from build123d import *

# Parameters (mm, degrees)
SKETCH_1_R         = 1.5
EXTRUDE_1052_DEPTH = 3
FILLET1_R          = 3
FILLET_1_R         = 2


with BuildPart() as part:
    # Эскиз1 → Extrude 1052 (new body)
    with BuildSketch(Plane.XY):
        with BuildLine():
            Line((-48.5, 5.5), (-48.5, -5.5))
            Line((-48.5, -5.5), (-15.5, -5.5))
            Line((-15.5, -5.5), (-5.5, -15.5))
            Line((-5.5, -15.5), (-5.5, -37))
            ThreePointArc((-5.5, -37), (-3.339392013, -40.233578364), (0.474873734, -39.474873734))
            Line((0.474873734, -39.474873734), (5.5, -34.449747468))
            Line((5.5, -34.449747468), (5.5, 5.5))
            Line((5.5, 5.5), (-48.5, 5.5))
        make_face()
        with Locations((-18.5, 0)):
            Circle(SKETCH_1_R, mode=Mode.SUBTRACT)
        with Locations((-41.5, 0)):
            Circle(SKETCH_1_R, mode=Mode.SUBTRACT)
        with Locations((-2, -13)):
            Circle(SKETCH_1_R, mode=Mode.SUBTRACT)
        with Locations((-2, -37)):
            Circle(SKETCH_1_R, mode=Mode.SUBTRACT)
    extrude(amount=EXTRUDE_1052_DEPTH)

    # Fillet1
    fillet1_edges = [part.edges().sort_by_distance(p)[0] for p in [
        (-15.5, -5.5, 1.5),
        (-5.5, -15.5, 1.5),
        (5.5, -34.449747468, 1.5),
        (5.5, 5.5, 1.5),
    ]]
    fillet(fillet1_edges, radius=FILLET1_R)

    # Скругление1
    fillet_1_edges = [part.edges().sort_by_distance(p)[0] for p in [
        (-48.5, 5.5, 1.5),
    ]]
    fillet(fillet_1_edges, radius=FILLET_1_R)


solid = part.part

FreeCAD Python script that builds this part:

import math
import FreeCAD as App
import Part
import Sketcher

V = App.Vector
Q = App.Units.Quantity


def edges_at(feature, points):
    """Names of the edges that pass closest to the given points."""
    edges = feature.Shape.Edges
    near = lambda p: min(range(len(edges)), key=lambda i: edges[i].distToShape(Part.Vertex(*p))[0])
    return sorted({f"Edge{near(p) + 1}" for p in points})

doc = App.newDocument("Part")
body = doc.addObject("PartDesign::Body", "Body")

sketch1 = doc.addObject("Sketcher::SketchObject", "Sketch")
body.addObject(sketch1)
sketch1.AttachmentSupport = (doc.XY_Plane, [""])
sketch1.MapMode = "FlatFace"
sketch1.addGeometry(Part.LineSegment(V(-48.5, 5.5, 0), V(-48.5, -5.5, 0)), False)
sketch1.addGeometry(Part.LineSegment(V(-48.5, -5.5, 0), V(-15.5, -5.5, 0)), False)
sketch1.addGeometry(Part.LineSegment(V(-15.5, -5.5, 0), V(-5.5, -15.5, 0)), False)
sketch1.addGeometry(Part.LineSegment(V(-5.5, -15.5, 0), V(-5.5, -37, 0)), False)
sketch1.addGeometry(Part.ArcOfCircle(Part.Circle(V(-2, -37, 0), V(0, 0, 1), 3.5), math.radians(180), math.radians(315)), False)
sketch1.addGeometry(Part.LineSegment(V(0.474874, -39.474874, 0), V(5.5, -34.449747, 0)), False)
sketch1.addGeometry(Part.LineSegment(V(5.5, -34.449747, 0), V(5.5, 5.5, 0)), False)
sketch1.addGeometry(Part.LineSegment(V(5.5, 5.5, 0), V(-48.5, 5.5, 0)), False)
sketch1.addGeometry(Part.Circle(V(-2, -37, 0), V(0, 0, 1), 1.5), False)
sketch1.addGeometry(Part.Circle(V(-41.5, 0, 0), V(0, 0, 1), 1.5), False)
sketch1.addGeometry(Part.Circle(V(-2, -13, 0), V(0, 0, 1), 1.5), False)
sketch1.addGeometry(Part.Circle(V(-18.5, 0, 0), V(0, 0, 1), 1.5), False)
sketch1.addConstraint(Sketcher.Constraint("Coincident", 0, 2, 1, 1))
sketch1.addConstraint(Sketcher.Constraint("Coincident", 1, 2, 2, 1))
sketch1.addConstraint(Sketcher.Constraint("Coincident", 2, 2, 3, 1))
sketch1.addConstraint(Sketcher.Constraint("Tangent", 3, 2, 4, 1))
sketch1.addConstraint(Sketcher.Constraint("Tangent", 4, 2, 5, 1))
sketch1.addConstraint(Sketcher.Constraint("Coincident", 5, 2, 6, 1))
sketch1.addConstraint(Sketcher.Constraint("Coincident", 6, 2, 7, 1))
sketch1.addConstraint(Sketcher.Constraint("Coincident", 7, 2, 0, 1))
sketch1.addConstraint(Sketcher.Constraint("Vertical", 0))
sketch1.addConstraint(Sketcher.Constraint("Horizontal", 1))
sketch1.addConstraint(Sketcher.Constraint("Vertical", 3))
sketch1.addConstraint(Sketcher.Constraint("Vertical", 6))
sketch1.addConstraint(Sketcher.Constraint("Horizontal", 7))
sketch1.addConstraint(Sketcher.Constraint("Coincident", 8, 3, 4, 3))
sketch1.addConstraint(Sketcher.Constraint("Equal", 8, 9))
sketch1.addConstraint(Sketcher.Constraint("Equal", 9, 10))
sketch1.addConstraint(Sketcher.Constraint("Equal", 10, 11))
sketch1.addConstraint(Sketcher.Constraint("PointOnObject", 9, 3, -1))
sketch1.addConstraint(Sketcher.Constraint("PointOnObject", 11, 3, -1))
sketch1.addConstraint(Sketcher.Constraint("Perpendicular", 2, 5))
sketch1.addConstraint(Sketcher.Constraint("Vertical", 8, 3, 10, 3))
sketch1.addConstraint(Sketcher.Constraint("Diameter", 8, Q("3 mm")))
sketch1.addConstraint(Sketcher.Constraint("Radius", 4, Q("3.5 mm")))
sketch1.addConstraint(Sketcher.Constraint("DistanceX", 1, 1, 1, 2, Q("33 mm")))
sketch1.addConstraint(Sketcher.Constraint("DistanceX", 7, 2, 7, 1, Q("54 mm")))
sketch1.addConstraint(Sketcher.Constraint("DistanceY", 0, 2, 0, 1, Q("11 mm")))
sketch1.addConstraint(Sketcher.Constraint("Angle", 2, Q("-45 deg")))
sketch1.addConstraint(Sketcher.Constraint("DistanceY", 3, 2, 3, 1, Q("21.5 mm")))
sketch1.addConstraint(Sketcher.Constraint("DistanceX", 4, 3, -1, 1, Q("2 mm")))
sketch1.addConstraint(Sketcher.Constraint("DistanceY", 4, 3, -1, 1, Q("37 mm")))
sketch1.addConstraint(Sketcher.Constraint("DistanceY", 10, 3, -1, 1, Q("13 mm")))
sketch1.addConstraint(Sketcher.Constraint("DistanceX", 9, 3, 11, 3, Q("23 mm")))
sketch1.addConstraint(Sketcher.Constraint("DistanceX", 0, 2, 9, 3, Q("7 mm")))
sketch1.addConstraint(Sketcher.Constraint("DistanceX", 1, 2, 2, 2, Q("10 mm")))
pad1 = doc.addObject("PartDesign::Pad", "Pad")
body.addObject(pad1)
pad1.Profile = sketch1
pad1.Length = 3
doc.recompute()

fillet = doc.addObject("PartDesign::Fillet", "Fillet")
body.addObject(fillet)
fillet.Base = (pad1, edges_at(pad1, [
    (-15.5, -5.5, 1.5),
    (-5.5, -15.5, 1.5),
    (5.5, -34.45, 1.5),
    (5.5, 5.5, 1.5),
]))
fillet.Radius = 3
doc.recompute()

fillet2 = doc.addObject("PartDesign::Fillet", "Fillet001")
body.addObject(fillet2)
fillet2.Base = (fillet, edges_at(fillet, [(-48.5, 5.5, 1.5)]))
fillet2.Radius = 2

doc.recompute()
